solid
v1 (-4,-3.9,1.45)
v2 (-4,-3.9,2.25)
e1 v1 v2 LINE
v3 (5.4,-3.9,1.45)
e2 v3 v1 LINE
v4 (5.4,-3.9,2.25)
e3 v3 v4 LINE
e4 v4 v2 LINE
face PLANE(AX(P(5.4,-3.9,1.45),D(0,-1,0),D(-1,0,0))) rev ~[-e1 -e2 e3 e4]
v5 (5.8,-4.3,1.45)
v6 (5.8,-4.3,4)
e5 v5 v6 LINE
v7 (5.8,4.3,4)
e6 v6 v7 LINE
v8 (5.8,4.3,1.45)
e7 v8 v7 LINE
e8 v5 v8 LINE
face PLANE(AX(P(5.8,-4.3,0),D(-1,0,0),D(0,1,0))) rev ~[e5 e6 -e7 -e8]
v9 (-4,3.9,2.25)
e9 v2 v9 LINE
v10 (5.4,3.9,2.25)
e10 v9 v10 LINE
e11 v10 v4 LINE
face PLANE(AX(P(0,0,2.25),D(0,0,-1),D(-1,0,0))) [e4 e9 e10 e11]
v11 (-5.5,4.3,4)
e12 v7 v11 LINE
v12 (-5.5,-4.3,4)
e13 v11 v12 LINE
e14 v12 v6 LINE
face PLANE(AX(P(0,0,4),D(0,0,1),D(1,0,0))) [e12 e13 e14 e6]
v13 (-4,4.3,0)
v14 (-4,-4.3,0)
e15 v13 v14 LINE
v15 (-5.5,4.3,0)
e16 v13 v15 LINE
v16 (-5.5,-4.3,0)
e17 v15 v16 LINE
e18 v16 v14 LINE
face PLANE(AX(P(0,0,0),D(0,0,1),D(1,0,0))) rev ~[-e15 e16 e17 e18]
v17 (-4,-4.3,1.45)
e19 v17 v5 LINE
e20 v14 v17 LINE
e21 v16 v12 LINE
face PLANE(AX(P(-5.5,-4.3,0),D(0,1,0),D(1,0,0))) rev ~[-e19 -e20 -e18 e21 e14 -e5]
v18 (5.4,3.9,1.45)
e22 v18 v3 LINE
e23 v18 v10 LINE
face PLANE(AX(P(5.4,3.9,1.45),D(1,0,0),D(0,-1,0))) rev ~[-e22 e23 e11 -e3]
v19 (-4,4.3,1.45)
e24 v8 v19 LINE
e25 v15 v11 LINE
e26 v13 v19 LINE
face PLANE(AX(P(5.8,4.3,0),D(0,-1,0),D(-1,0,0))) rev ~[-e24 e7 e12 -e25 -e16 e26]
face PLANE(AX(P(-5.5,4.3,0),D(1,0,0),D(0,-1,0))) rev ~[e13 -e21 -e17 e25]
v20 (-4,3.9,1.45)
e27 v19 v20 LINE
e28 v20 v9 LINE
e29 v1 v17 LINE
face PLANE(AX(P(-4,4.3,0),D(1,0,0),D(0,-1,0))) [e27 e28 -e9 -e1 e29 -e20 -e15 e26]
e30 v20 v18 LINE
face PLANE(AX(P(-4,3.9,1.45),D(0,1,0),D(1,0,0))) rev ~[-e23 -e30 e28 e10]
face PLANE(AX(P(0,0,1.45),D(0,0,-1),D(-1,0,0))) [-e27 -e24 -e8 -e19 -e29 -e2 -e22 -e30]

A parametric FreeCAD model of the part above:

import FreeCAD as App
import Part
import Sketcher
from FreeCAD import Vector

doc = App.newDocument("Part")
body = doc.addObject("PartDesign::Body", "Body")

sketch1 = body.newObject("Sketcher::SketchObject", "Sketch")
sketch1.AttachmentSupport = (doc.getObject("XY_Plane"), [""])
sketch1.MapMode = "FlatFace"
sketch1.addGeometry([
    Part.LineSegment(Vector(6, -4, 0), Vector(6, 4, 0)),
    Part.LineSegment(Vector(6, 4, 0), Vector(-6, 4, 0)),
    Part.LineSegment(Vector(-6, 4, 0), Vector(-6, -4, 0)),
    Part.LineSegment(Vector(-6, -4, 0), Vector(6, -4, 0)),
], False)
sketch1.addConstraint([
    Sketcher.Constraint("Coincident", 0, 2, 1, 1),
    Sketcher.Constraint("Coincident", 1, 2, 2, 1),
    Sketcher.Constraint("Coincident", 2, 2, 3, 1),
    Sketcher.Constraint("Coincident", 3, 2, 0, 1),
    Sketcher.Constraint("Vertical", 0),
    Sketcher.Constraint("Horizontal", 1),
    Sketcher.Constraint("Vertical", 2),
    Sketcher.Constraint("Horizontal", 3),
    Sketcher.Constraint("DistanceX", 1, 2, 1, 1, 11.3),
    Sketcher.Constraint("DistanceY", 0, 1, 0, 2, 8.6),
    Sketcher.Constraint("DistanceX", -1, 1, 0, 2, 5.8),
    Sketcher.Constraint("DistanceY", -1, 1, 0, 2, 4.3),
])
pad1 = body.newObject("PartDesign::Pad", "Pad")
pad1.Profile = sketch1
pad1.Length = 4

sketch2 = body.newObject("Sketcher::SketchObject", "Sketch001")
sketch2.AttachmentSupport = (doc.getObject("XY_Plane"), [""])
sketch2.MapMode = "FlatFace"
sketch2.addGeometry([
    Part.LineSegment(Vector(-4, 4, 0), Vector(6, 4, 0)),
    Part.LineSegment(Vector(6, 4, 0), Vector(6, -4, 0)),
    Part.LineSegment(Vector(6, -4, 0), Vector(-4, -4, 0)),
    Part.LineSegment(Vector(-4, -4, 0), Vector(-4, 4, 0)),
], False)
sketch2.addConstraint([
    Sketcher.Constraint("Coincident", 0, 2, 1, 1),
    Sketcher.Constraint("Coincident", 1, 2, 2, 1),
    Sketcher.Constraint("Coincident", 2, 2, 3, 1),
    Sketcher.Constraint("Coincident", 3, 2, 0, 1),
    Sketcher.Constraint("Horizontal", 0),
    Sketcher.Constraint("Vertical", 1),
    Sketcher.Constraint("Horizontal", 2),
    Sketcher.Constraint("Vertical", 3),
    Sketcher.Constraint("DistanceX", 0, 1, 0, 2, 9.8),
    Sketcher.Constraint("DistanceY", 1, 2, 1, 1, 8.6),
    Sketcher.Constraint("DistanceX", 2, 2, -1, 1, 4.0),
    Sketcher.Constraint("DistanceY", -1, 1, 0, 2, 4.3),
])
pocket1 = body.newObject("PartDesign::Pocket", "Pocket")
pocket1.Profile = sketch2
pocket1.Length = 1.45
pocket1.Reversed = True

sketch3 = body.newObject("Sketcher::SketchObject", "Sketch002")
sketch3.AttachmentSupport = (doc.getObject("XY_Plane"), [""])
sketch3.MapMode = "FlatFace"
sketch3.AttachmentOffset = App.Placement(Vector(0, 0, 1.45), App.Rotation())
sketch3.addGeometry([
    Part.LineSegment(Vector(5, -4, 0), Vector(-4, -4, 0)),
    Part.LineSegment(Vector(-4, -4, 0), Vector(-4, 4, 0)),
    Part.LineSegment(Vector(-4, 4, 0), Vector(5, 4, 0)),
    Part.LineSegment(Vector(5, 4, 0), Vector(5, -4, 0)),
], False)
sketch3.addConstraint([
    Sketcher.Constraint("Coincident", 0, 2, 1, 1),
    Sketcher.Constraint("Coincident", 1, 2, 2, 1),
    Sketcher.Constraint("Coincident", 2, 2, 3, 1),
    Sketcher.Constraint("Coincident", 3, 2, 0, 1),
    Sketcher.Constraint("Horizontal", 0),
    Sketcher.Constraint("Vertical", 1),
    Sketcher.Constraint("Horizontal", 2),
    Sketcher.Constraint("Vertical", 3),
    Sketcher.Constraint("DistanceX", 0, 2, 0, 1, 9.4),
    Sketcher.Constraint("DistanceY", 1, 1, 1, 2, 7.8),
    Sketcher.Constraint("DistanceX", 0, 2, -1, 1, 4.0),
    Sketcher.Constraint("DistanceY", 0, 2, -1, 1, 3.9),
])
pocket2 = body.newObject("PartDesign::Pocket", "Pocket001")
pocket2.Profile = sketch3
pocket2.Length = 0.8
pocket2.Reversed = True

doc.recompute()
